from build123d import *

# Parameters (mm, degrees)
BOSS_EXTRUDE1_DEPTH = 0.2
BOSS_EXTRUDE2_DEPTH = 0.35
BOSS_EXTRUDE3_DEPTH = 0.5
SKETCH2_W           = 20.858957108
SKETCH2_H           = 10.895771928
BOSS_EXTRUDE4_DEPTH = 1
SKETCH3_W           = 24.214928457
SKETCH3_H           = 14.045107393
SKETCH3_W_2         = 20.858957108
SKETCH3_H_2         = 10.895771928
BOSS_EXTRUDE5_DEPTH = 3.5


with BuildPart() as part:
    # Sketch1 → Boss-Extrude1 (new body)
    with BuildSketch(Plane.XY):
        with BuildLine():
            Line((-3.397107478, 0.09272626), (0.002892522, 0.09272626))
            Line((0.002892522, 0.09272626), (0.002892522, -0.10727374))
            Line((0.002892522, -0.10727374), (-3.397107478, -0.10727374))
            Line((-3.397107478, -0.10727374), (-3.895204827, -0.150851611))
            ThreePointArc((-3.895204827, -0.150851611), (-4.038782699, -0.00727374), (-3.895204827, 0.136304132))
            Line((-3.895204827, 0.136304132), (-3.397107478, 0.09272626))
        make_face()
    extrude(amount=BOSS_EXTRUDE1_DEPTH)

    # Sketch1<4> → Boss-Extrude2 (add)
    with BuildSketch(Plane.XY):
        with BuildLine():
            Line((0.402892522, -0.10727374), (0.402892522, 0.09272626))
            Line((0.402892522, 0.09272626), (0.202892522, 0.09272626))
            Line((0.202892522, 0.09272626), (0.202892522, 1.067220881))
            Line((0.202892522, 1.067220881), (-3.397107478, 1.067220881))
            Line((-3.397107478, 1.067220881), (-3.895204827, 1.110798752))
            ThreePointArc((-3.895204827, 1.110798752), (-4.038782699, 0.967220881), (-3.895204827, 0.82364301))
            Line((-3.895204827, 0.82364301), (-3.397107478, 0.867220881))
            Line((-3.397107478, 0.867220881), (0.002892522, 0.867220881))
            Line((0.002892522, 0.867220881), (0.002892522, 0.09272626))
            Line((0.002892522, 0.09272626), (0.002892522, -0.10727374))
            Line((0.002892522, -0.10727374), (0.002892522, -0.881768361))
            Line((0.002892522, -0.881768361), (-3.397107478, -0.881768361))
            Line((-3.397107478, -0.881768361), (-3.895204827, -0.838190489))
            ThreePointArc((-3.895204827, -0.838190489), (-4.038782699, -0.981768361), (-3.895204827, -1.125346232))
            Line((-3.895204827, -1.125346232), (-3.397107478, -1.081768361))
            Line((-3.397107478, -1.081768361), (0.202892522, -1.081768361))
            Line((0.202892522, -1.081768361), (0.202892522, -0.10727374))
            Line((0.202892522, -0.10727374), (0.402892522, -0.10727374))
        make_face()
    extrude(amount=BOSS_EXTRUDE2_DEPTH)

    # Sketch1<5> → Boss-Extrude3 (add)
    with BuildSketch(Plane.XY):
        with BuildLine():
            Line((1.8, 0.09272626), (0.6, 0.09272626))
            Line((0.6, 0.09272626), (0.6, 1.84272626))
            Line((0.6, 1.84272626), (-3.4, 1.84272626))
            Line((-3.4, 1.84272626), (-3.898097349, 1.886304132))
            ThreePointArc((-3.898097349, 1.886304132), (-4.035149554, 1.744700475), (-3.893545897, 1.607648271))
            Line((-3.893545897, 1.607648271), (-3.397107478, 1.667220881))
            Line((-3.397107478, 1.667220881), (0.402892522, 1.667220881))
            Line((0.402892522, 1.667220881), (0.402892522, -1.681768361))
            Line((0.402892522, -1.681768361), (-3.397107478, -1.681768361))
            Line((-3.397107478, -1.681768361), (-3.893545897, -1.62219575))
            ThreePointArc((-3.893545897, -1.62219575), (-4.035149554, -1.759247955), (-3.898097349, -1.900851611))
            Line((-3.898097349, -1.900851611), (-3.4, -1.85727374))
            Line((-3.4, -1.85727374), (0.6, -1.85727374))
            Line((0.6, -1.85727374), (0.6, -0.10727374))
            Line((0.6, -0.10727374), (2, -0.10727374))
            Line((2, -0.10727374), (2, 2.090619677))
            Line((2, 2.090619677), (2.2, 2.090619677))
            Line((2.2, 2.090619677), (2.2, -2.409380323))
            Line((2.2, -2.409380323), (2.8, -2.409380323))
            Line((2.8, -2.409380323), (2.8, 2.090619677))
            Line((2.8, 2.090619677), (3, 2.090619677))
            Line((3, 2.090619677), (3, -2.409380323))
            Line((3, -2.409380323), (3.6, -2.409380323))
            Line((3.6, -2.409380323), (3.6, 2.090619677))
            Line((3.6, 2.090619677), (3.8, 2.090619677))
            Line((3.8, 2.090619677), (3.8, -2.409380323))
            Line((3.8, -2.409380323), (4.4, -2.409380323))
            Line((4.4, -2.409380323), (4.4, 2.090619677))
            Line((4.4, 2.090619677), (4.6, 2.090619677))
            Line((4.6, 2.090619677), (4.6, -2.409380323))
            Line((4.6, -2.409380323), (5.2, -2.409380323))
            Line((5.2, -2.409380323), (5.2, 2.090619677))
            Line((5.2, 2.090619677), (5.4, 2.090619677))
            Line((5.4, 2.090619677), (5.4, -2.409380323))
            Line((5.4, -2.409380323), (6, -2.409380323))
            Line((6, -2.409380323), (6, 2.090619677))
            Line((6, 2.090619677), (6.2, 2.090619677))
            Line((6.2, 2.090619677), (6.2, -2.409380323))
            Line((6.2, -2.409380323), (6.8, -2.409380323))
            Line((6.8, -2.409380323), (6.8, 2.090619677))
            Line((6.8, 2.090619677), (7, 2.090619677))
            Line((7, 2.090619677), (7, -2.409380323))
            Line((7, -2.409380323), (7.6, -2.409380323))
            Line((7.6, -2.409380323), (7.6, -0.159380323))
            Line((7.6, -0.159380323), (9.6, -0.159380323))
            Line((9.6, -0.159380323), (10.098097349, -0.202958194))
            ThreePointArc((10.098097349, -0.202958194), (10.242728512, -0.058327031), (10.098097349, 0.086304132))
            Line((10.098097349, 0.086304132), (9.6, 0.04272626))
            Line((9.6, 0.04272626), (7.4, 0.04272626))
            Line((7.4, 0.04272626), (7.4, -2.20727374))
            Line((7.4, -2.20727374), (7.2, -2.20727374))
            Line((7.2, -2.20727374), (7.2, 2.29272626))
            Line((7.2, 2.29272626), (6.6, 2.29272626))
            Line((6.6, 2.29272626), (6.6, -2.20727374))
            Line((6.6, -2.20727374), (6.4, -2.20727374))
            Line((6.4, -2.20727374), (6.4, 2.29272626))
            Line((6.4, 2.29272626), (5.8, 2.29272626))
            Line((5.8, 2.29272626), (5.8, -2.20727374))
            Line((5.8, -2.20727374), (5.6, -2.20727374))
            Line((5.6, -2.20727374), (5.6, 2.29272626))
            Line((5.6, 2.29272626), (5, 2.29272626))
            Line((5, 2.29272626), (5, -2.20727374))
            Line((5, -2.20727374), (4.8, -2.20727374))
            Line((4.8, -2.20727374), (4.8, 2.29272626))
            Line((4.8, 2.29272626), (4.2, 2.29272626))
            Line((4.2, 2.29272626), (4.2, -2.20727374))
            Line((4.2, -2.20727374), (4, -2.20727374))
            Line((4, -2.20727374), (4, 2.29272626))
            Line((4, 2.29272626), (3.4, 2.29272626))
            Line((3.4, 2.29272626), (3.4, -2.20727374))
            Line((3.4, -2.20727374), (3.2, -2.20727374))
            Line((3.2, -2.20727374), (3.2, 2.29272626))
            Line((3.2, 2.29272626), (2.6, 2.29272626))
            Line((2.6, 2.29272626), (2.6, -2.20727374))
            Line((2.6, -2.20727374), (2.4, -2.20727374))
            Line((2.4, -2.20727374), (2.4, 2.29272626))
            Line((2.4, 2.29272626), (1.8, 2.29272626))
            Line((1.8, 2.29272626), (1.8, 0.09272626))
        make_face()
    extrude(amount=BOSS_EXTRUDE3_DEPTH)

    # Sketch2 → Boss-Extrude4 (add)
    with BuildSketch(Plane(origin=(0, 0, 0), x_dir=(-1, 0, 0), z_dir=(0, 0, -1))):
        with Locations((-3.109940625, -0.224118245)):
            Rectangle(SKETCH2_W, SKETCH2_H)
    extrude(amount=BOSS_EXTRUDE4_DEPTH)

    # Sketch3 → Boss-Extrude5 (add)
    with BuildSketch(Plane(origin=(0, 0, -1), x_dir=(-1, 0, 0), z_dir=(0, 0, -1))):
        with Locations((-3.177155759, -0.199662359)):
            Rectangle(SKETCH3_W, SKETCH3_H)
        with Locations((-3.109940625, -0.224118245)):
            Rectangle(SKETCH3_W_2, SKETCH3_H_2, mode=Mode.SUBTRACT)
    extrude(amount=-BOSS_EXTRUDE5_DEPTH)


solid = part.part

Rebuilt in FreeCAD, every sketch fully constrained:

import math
import FreeCAD as App
import Part
import Sketcher

V = App.Vector
Q = App.Units.Quantity


def add_polygon(sketch, points):
    """Adds a closed chain of lines whose ends are joined by coincident constraints."""
    first, n = sketch.GeometryCount, len(points)
    for a, b in zip(points, points[1:] + points[:1]):
        sketch.addGeometry(Part.LineSegment(App.Vector(*a, 0), App.Vector(*b, 0)), False)
    for i in range(n):
        sketch.addConstraint(Sketcher.Constraint("Coincident", first + i, 2, first + (i + 1) % n, 1))

doc = App.newDocument("Part")
params = doc.addObject("Spreadsheet::Sheet", "Params")
for row, (alias, value) in enumerate([
    ("sketch1_width", "3.4 mm"),
    ("sketch1_height", "0.2 mm"),
    ("sketch1_length", "0.5 mm"),
    ("pad1_length", "0.2 mm"),
    ("sketch2_width", "0.2 mm"),
    ("sketch2_width2", "3.6 mm"),
    ("sketch2_width3", "3.4 mm"),
    ("sketch2_length", "0.5 mm"),
    ("pad2_length", "0.35 mm"),
    ("sketch3_width", "4 mm"),
    ("sketch3_width2", "2 mm"),
    ("sketch3_width3", "1.2 mm"),
    ("sketch3_width4", "3.8 mm"),
    ("sketch3_width5", "1.4 mm"),
    ("pad3_length", "0.5 mm"),
    ("pad4_length", "1 mm"),
    ("pad5_length", "3.5 mm"),
], start=1):
    params.set(f"A{row}", alias)
    params.set(f"B{row}", "=" + value)
    params.setAlias(f"B{row}", alias)

body = doc.addObject("PartDesign::Body", "Body")

sketch1 = body.newObject("Sketcher::SketchObject", "Sketch")
sketch1.AttachmentSupport = (doc.getObject("XY_Plane"), [""])
sketch1.MapMode = "FlatFace"
sketch1.addGeometry([
    Part.LineSegment(V(0, 0.09, 0), V(-3.4, 0.09, 0)),
    Part.LineSegment(V(-3.4, 0.09, 0), V(-3.9, 0.14, 0)),
    Part.ArcOfCircle(Part.Circle(V(-3.9, -0.01, 0), V(0, 0, 1), 0.14), math.radians(90), math.radians(270)),
    Part.LineSegment(V(-3.9, -0.15, 0), V(-3.4, -0.11, 0)),
    Part.LineSegment(V(-3.4, -0.11, 0), V(0, -0.11, 0)),
    Part.LineSegment(V(0, -0.11, 0), V(0, 0.09, 0)),
], False)
sketch1.addConstraint([
    Sketcher.Constraint("Coincident", 0, 2, 1, 1),
    Sketcher.Constraint("Coincident", 1, 2, 2, 1),
    Sketcher.Constraint("Coincident", 2, 2, 3, 1),
    Sketcher.Constraint("Coincident", 3, 2, 4, 1),
    Sketcher.Constraint("Coincident", 4, 2, 5, 1),
    Sketcher.Constraint("Coincident", 5, 2, 0, 1),
    Sketcher.Constraint("Horizontal", 0),
    Sketcher.Constraint("Horizontal", 4),
    Sketcher.Constraint("Vertical", 5),
    Sketcher.Constraint("Vertical", 2, 3, 1, 2),
    Sketcher.Constraint("Vertical", 1, 2, 2, 2),
    Sketcher.Constraint("Vertical", 0, 2, 3, 2),
    Sketcher.Constraint("Equal", 1, 3),
    Sketcher.Constraint("Angle", 1, Q("175 deg")),
    Sketcher.Constraint("DistanceX", 0, 2, 0, 1, Q("3.4 mm")),
    Sketcher.Constraint("DistanceY", 5, 1, 5, 2, Q("0.2 mm")),
    Sketcher.Constraint("Distance", 1, Q("0.5 mm")),
    Sketcher.Constraint("DistanceY", 2, 2, -1, 1, Q("0.150852 mm")),
    Sketcher.Constraint("DistanceX", 2, 3, -1, 1, Q("3.895205 mm")),
])
sketch1.setExpression("Constraints[14]", "Params.sketch1_width")
sketch1.setExpression("Constraints[15]", "Params.sketch1_height")
sketch1.setExpression("Constraints[16]", "Params.sketch1_length")
pad1 = body.newObject("PartDesign::Pad", "Pad")
pad1.Profile = sketch1
pad1.setExpression("Length", "Params.pad1_length")

sketch2 = body.newObject("Sketcher::SketchObject", "Sketch001")
sketch2.AttachmentSupport = (doc.getObject("XY_Plane"), [""])
sketch2.MapMode = "FlatFace"
sketch2.addGeometry([
    Part.LineSegment(V(0.4, -0.11, 0), V(0.4, 0.09, 0)),
    Part.LineSegment(V(0.4, 0.09, 0), V(0.2, 0.09, 0)),
    Part.LineSegment(V(0.2, 0.09, 0), V(0.2, 1.07, 0)),
    Part.LineSegment(V(0.2, 1.07, 0), V(-3.4, 1.07, 0)),
    Part.LineSegment(V(-3.4, 1.07, 0), V(-3.9, 1.11, 0)),
    Part.ArcOfCircle(Part.Circle(V(-3.9, 0.97, 0), V(0, 0, 1), 0.14), math.radians(90), math.radians(270)),
    Part.LineSegment(V(-3.9, 0.82, 0), V(-3.4, 0.87, 0)),
    Part.LineSegment(V(-3.4, 0.87, 0), V(0, 0.87, 0)),
    Part.LineSegment(V(0, 0.87, 0), V(0, -0.88, 0)),
    Part.LineSegment(V(0, -0.88, 0), V(-3.4, -0.88, 0)),
    Part.LineSegment(V(-3.4, -0.88, 0), V(-3.9, -0.84, 0)),
    Part.ArcOfCircle(Part.Circle(V(-3.9, -0.98, 0), V(0, 0, 1), 0.14), math.radians(90), math.radians(270)),
    Part.LineSegment(V(-3.9, -1.13, 0), V(-3.4, -1.08, 0)),
    Part.LineSegment(V(-3.4, -1.08, 0), V(0.2, -1.08, 0)),
    Part.LineSegment(V(0.2, -1.08, 0), V(0.2, -0.11, 0)),
    Part.LineSegment(V(0.2, -0.11, 0), V(0.4, -0.11, 0)),
], False)
sketch2.addConstraint([
    Sketcher.Constraint("Coincident", 0, 2, 1, 1),
    Sketcher.Constraint("Coincident", 1, 2, 2, 1),
    Sketcher.Constraint("Coincident", 2, 2, 3, 1),
    Sketcher.Constraint("Coincident", 3, 2, 4, 1),
    Sketcher.Constraint("Coincident", 4, 2, 5, 1),
    Sketcher.Constraint("Coincident", 5, 2, 6, 1),
    Sketcher.Constraint("Coincident", 6, 2, 7, 1),
    Sketcher.Constraint("Coincident", 7, 2, 8, 1),
    Sketcher.Constraint("Coincident", 8, 2, 9, 1),
    Sketcher.Constraint("Coincident", 9, 2, 10, 1),
    Sketcher.Constraint("Coincident", 10, 2, 11, 1),
    Sketcher.Constraint("Coincident", 11, 2, 12, 1),
    Sketcher.Constraint("Coincident", 12, 2, 13, 1),
    Sketcher.Constraint("Coincident", 13, 2, 14, 1),
    Sketcher.Constraint("Coincident", 14, 2, 15, 1),
    Sketcher.Constraint("Coincident", 15, 2, 0, 1),
    Sketcher.Constraint("Vertical", 0),
    Sketcher.Constraint("Horizontal", 1),
    Sketcher.Constraint("Vertical", 2),
    Sketcher.Constraint("Horizontal", 3),
    Sketcher.Constraint("Horizontal", 7),
    Sketcher.Constraint("Vertical", 8),
    Sketcher.Constraint("Horizontal", 9),
    Sketcher.Constraint("Horizontal", 13),
    Sketcher.Constraint("Vertical", 14),
    Sketcher.Constraint("Horizontal", 15),
    Sketcher.Constraint("Equal", 5, 11),
    Sketcher.Constraint("Parallel", 4, 10),
    Sketcher.Constraint("Parallel", 6, 12),
    Sketcher.Constraint("Vertical", 5, 3, 11, 3),
    Sketcher.Constraint("Vertical", 11, 3, 4, 2),
    Sketcher.Constraint("Vertical", 4, 2, 5, 2),
    Sketcher.Constraint("Vertical", 3, 2, 6, 2),
    Sketcher.Constraint("Vertical", 6, 2, 9, 2),
    Sketcher.Constraint("Vertical", 5, 2, 10, 2),
    Sketcher.Constraint("Vertical", 10, 2, 11, 2),
    Sketcher.Constraint("Vertical", 9, 2, 12, 2),
    Sketcher.Constraint("Vertical", 2, 2, 13, 2),
    Sketcher.Constraint("Equal", 15, 0),
    Sketcher.Constraint("Equal", 2, 14),
    Sketcher.Constraint("Equal", 4, 6),
    Sketcher.Constraint("Angle", 4, Q("175 deg")),
    Sketcher.Constraint("DistanceX", 1, 2, 1, 1, Q("0.2 mm")),
    Sketcher.Constraint("DistanceX", 3, 2, 3, 1, Q("3.6 mm")),
    Sketcher.Constraint("DistanceX", 7, 1, 7, 2, Q("3.4 mm")),
    Sketcher.Constraint("Distance", 4, Q("0.5 mm")),
    Sketcher.Constraint("DistanceY", 5, 3, 2, 2, Q("0.1 mm")),
    Sketcher.Constraint("DistanceY", 8, 2, 8, 1, Q("1.748989 mm")),
    Sketcher.Constraint("DistanceY", -1, 1, 4, 2, Q("1.110799 mm")),
    Sketcher.Constraint("DistanceX", 5, 3, -1, 1, Q("3.895205 mm")),
])
sketch2.setExpression("Constraints[42]", "Params.sketch2_width")
sketch2.setExpression("Constraints[43]", "Params.sketch2_width2")
sketch2.setExpression("Constraints[44]", "Params.sketch2_width3")
sketch2.setExpression("Constraints[45]", "Params.sketch2_length")
pad2 = body.newObject("PartDesign::Pad", "Pad001")
pad2.Profile = sketch2
pad2.setExpression("Length", "Params.pad2_length")

sketch3 = body.newObject("Sketcher::SketchObject", "Sketch002")
sketch3.AttachmentSupport = (doc.getObject("XY_Plane"), [""])
sketch3.MapMode = "FlatFace"
sketch3.addGeometry([
    Part.LineSegment(V(1.8, 0.09, 0), V(0.6, 0.09, 0)),
    Part.LineSegment(V(0.6, 0.09, 0), V(0.6, 1.84, 0)),
    Part.LineSegment(V(0.6, 1.84, 0), V(-3.4, 1.84, 0)),
    Part.LineSegment(V(-3.4, 1.84, 0), V(-3.9, 1.89, 0)),
    Part.ArcOfCircle(Part.Circle(V(-3.9, 1.75, 0), V(0, 0, 1), 0.14), math.radians(91), math.radians(271)),
    Part.LineSegment(V(-3.89, 1.61, 0), V(-3.4, 1.67, 0)),
    Part.LineSegment(V(-3.4, 1.67, 0), V(0.4, 1.67, 0)),
    Part.LineSegment(V(0.4, 1.67, 0), V(0.4, -1.68, 0)),
    Part.LineSegment(V(0.4, -1.68, 0), V(-3.4, -1.68, 0)),
    Part.LineSegment(V(-3.4, -1.68, 0), V(-3.89, -1.62, 0)),
    Part.ArcOfCircle(Part.Circle(V(-3.9, -1.76, 0), V(0, 0, 1), 0.14), math.radians(89), math.radians(269)),
    Part.LineSegment(V(-3.9, -1.9, 0), V(-3.4, -1.86, 0)),
    Part.LineSegment(V(-3.4, -1.86, 0), V(0.6, -1.86, 0)),
    Part.LineSegment(V(0.6, -1.86, 0), V(0.6, -0.11, 0)),
    Part.LineSegment(V(0.6, -0.11, 0), V(2, -0.11, 0)),
    Part.LineSegment(V(2, -0.11, 0), V(2, 2.09, 0)),
    Part.LineSegment(V(2, 2.09, 0), V(2.2, 2.09, 0)),
    Part.LineSegment(V(2.2, 2.09, 0), V(2.2, -2.41, 0)),
    Part.LineSegment(V(2.2, -2.41, 0), V(2.8, -2.41, 0)),
    Part.LineSegment(V(2.8, -2.41, 0), V(2.8, 2.09, 0)),
    Part.LineSegment(V(2.8, 2.09, 0), V(3, 2.09, 0)),
    Part.LineSegment(V(3, 2.09, 0), V(3, -2.41, 0)),
    Part.LineSegment(V(3, -2.41, 0), V(3.6, -2.41, 0)),
    Part.LineSegment(V(3.6, -2.41, 0), V(3.6, 2.09, 0)),
    Part.LineSegment(V(3.6, 2.09, 0), V(3.8, 2.09, 0)),
    Part.LineSegment(V(3.8, 2.09, 0), V(3.8, -2.41, 0)),
    Part.LineSegment(V(3.8, -2.41, 0), V(4.4, -2.41, 0)),
    Part.LineSegment(V(4.4, -2.41, 0), V(4.4, 2.09, 0)),
    Part.LineSegment(V(4.4, 2.09, 0), V(4.6, 2.09, 0)),
    Part.LineSegment(V(4.6, 2.09, 0), V(4.6, -2.41, 0)),
    Part.LineSegment(V(4.6, -2.41, 0), V(5.2, -2.41, 0)),
    Part.LineSegment(V(5.2, -2.41, 0), V(5.2, 2.09, 0)),
    Part.LineSegment(V(5.2, 2.09, 0), V(5.4, 2.09, 0)),
    Part.LineSegment(V(5.4, 2.09, 0), V(5.4, -2.41, 0)),
    Part.LineSegment(V(5.4, -2.41, 0), V(6, -2.41, 0)),
    Part.LineSegment(V(6, -2.41, 0), V(6, 2.09, 0)),
    Part.LineSegment(V(6, 2.09, 0), V(6.2, 2.09, 0)),
    Part.LineSegment(V(6.2, 2.09, 0), V(6.2, -2.41, 0)),
    Part.LineSegment(V(6.2, -2.41, 0), V(6.8, -2.41, 0)),
    Part.LineSegment(V(6.8, -2.41, 0), V(6.8, 2.09, 0)),
    Part.LineSegment(V(6.8, 2.09, 0), V(7, 2.09, 0)),
    Part.LineSegment(V(7, 2.09, 0), V(7, -2.41, 0)),
    Part.LineSegment(V(7, -2.41, 0), V(7.6, -2.41, 0)),
    Part.LineSegment(V(7.6, -2.41, 0), V(7.6, -0.16, 0)),
    Part.LineSegment(V(7.6, -0.16, 0), V(9.6, -0.16, 0)),
    Part.LineSegment(V(9.6, -0.16, 0), V(10.1, -0.2, 0)),
    Part.ArcOfCircle(Part.Circle(V(10.1, -0.06, 0), V(0, 0, 1), 0.14), math.radians(-90), math.radians(90)),
    Part.LineSegment(V(10.1, 0.09, 0), V(9.6, 0.04, 0)),
    Part.LineSegment(V(9.6, 0.04, 0), V(7.4, 0.04, 0)),
    Part.LineSegment(V(7.4, 0.04, 0), V(7.4, -2.21, 0)),
    Part.LineSegment(V(7.4, -2.21, 0), V(7.2, -2.21, 0)),
    Part.LineSegment(V(7.2, -2.21, 0), V(7.2, 2.29, 0)),
    Part.LineSegment(V(7.2, 2.29, 0), V(6.6, 2.29, 0)),
    Part.LineSegment(V(6.6, 2.29, 0), V(6.6, -2.21, 0)),
    Part.LineSegment(V(6.6, -2.21, 0), V(6.4, -2.21, 0)),
    Part.LineSegment(V(6.4, -2.21, 0), V(6.4, 2.29, 0)),
    Part.LineSegment(V(6.4, 2.29, 0), V(5.8, 2.29, 0)),
    Part.LineSegment(V(5.8, 2.29, 0), V(5.8, -2.21, 0)),
    Part.LineSegment(V(5.8, -2.21, 0), V(5.6, -2.21, 0)),
    Part.LineSegment(V(5.6, -2.21, 0), V(5.6, 2.29, 0)),
    Part.LineSegment(V(5.6, 2.29, 0), V(5, 2.29, 0)),
    Part.LineSegment(V(5, 2.29, 0), V(5, -2.21, 0)),
    Part.LineSegment(V(5, -2.21, 0), V(4.8, -2.21, 0)),
    Part.LineSegment(V(4.8, -2.21, 0), V(4.8, 2.29, 0)),
    Part.LineSegment(V(4.8, 2.29, 0), V(4.2, 2.29, 0)),
    Part.LineSegment(V(4.2, 2.29, 0), V(4.2, -2.21, 0)),
    Part.LineSegment(V(4.2, -2.21, 0), V(4, -2.21, 0)),
    Part.LineSegment(V(4, -2.21, 0), V(4, 2.29, 0)),
    Part.LineSegment(V(4, 2.29, 0), V(3.4, 2.29, 0)),
    Part.LineSegment(V(3.4, 2.29, 0), V(3.4, -2.21, 0)),
    Part.LineSegment(V(3.4, -2.21, 0), V(3.2, -2.21, 0)),
    Part.LineSegment(V(3.2, -2.21, 0), V(3.2, 2.29, 0)),
    Part.LineSegment(V(3.2, 2.29, 0), V(2.6, 2.29, 0)),
    Part.LineSegment(V(2.6, 2.29, 0), V(2.6, -2.21, 0)),
    Part.LineSegment(V(2.6, -2.21, 0), V(2.4, -2.21, 0)),
    Part.LineSegment(V(2.4, -2.21, 0), V(2.4, 2.29, 0)),
    Part.LineSegment(V(2.4, 2.29, 0), V(1.8, 2.29, 0)),
    Part.LineSegment(V(1.8, 2.29, 0), V(1.8, 0.09, 0)),
], False)
sketch3.addConstraint([
    Sketcher.Constraint("Coincident", 0, 2, 1, 1),
    Sketcher.Constraint("Coincident", 1, 2, 2, 1),
    Sketcher.Constraint("Coincident", 2, 2, 3, 1),
    Sketcher.Constraint("Coincident", 3, 2, 4, 1),
    Sketcher.Constraint("Coincident", 4, 2, 5, 1),
    Sketcher.Constraint("Coincident", 5, 2, 6, 1),
    Sketcher.Constraint("Coincident", 6, 2, 7, 1),
    Sketcher.Constraint("Coincident", 7, 2, 8, 1),
    Sketcher.Constraint("Coincident", 8, 2, 9, 1),
    Sketcher.Constraint("Coincident", 9, 2, 10, 1),
    Sketcher.Constraint("Coincident", 10, 2, 11, 1),
    Sketcher.Constraint("Coincident", 11, 2, 12, 1),
    Sketcher.Constraint("Coincident", 12, 2, 13, 1),
    Sketcher.Constraint("Coincident", 13, 2, 14, 1),
    Sketcher.Constraint("Coincident", 14, 2, 15, 1),
    Sketcher.Constraint("Coincident", 15, 2, 16, 1),
    Sketcher.Constraint("Coincident", 16, 2, 17, 1),
    Sketcher.Constraint("Coincident", 17, 2, 18, 1),
    Sketcher.Constraint("Coincident", 18, 2, 19, 1),
    Sketcher.Constraint("Coincident", 19, 2, 20, 1),
    Sketcher.Constraint("Coincident", 20, 2, 21, 1),
    Sketcher.Constraint("Coincident", 21, 2, 22, 1),
    Sketcher.Constraint("Coincident", 22, 2, 23, 1),
    Sketcher.Constraint("Coincident", 23, 2, 24, 1),
    Sketcher.Constraint("Coincident", 24, 2, 25, 1),
    Sketcher.Constraint("Coincident", 25, 2, 26, 1),
    Sketcher.Constraint("Coincident", 26, 2, 27, 1),
    Sketcher.Constraint("Coincident", 27, 2, 28, 1),
    Sketcher.Constraint("Coincident", 28, 2, 29, 1),
    Sketcher.Constraint("Coincident", 29, 2, 30, 1),
    Sketcher.Constraint("Coincident", 30, 2, 31, 1),
    Sketcher.Constraint("Coincident", 31, 2, 32, 1),
    Sketcher.Constraint("Coincident", 32, 2, 33, 1),
    Sketcher.Constraint("Coincident", 33, 2, 34, 1),
    Sketcher.Constraint("Coincident", 34, 2, 35, 1),
    Sketcher.Constraint("Coincident", 35, 2, 36, 1),
    Sketcher.Constraint("Coincident", 36, 2, 37, 1),
    Sketcher.Constraint("Coincident", 37, 2, 38, 1),
    Sketcher.Constraint("Coincident", 38, 2, 39, 1),
    Sketcher.Constraint("Coincident", 39, 2, 40, 1),
    Sketcher.Constraint("Coincident", 40, 2, 41, 1),
    Sketcher.Constraint("Coincident", 41, 2, 42, 1),
    Sketcher.Constraint("Coincident", 42, 2, 43, 1),
    Sketcher.Constraint("Coincident", 43, 2, 44, 1),
    Sketcher.Constraint("Coincident", 44, 2, 45, 1),
    Sketcher.Constraint("Coincident", 45, 2, 46, 1),
    Sketcher.Constraint("Coincident", 46, 2, 47, 1),
    Sketcher.Constraint("Coincident", 47, 2, 48, 1),
    Sketcher.Constraint("Coincident", 48, 2, 49, 1),
    Sketcher.Constraint("Coincident", 49, 2, 50, 1),
    Sketcher.Constraint("Coincident", 50, 2, 51, 1),
    Sketcher.Constraint("Coincident", 51, 2, 52, 1),
    Sketcher.Constraint("Coincident", 52, 2, 53, 1),
    Sketcher.Constraint("Coincident", 53, 2, 54, 1),
    Sketcher.Constraint("Coincident", 54, 2, 55, 1),
    Sketcher.Constraint("Coincident", 55, 2, 56, 1),
    Sketcher.Constraint("Coincident", 56, 2, 57, 1),
    Sketcher.Constraint("Coincident", 57, 2, 58, 1),
    Sketcher.Constraint("Coincident", 58, 2, 59, 1),
    Sketcher.Constraint("Coincident", 59, 2, 60, 1),
    Sketcher.Constraint("Coincident", 60, 2, 61, 1),
    Sketcher.Constraint("Coincident", 61, 2, 62, 1),
    Sketcher.Constraint("Coincident", 62, 2, 63, 1),
    Sketcher.Constraint("Coincident", 63, 2, 64, 1),
    Sketcher.Constraint("Coincident", 64, 2, 65, 1),
    Sketcher.Constraint("Coincident", 65, 2, 66, 1),
    Sketcher.Constraint("Coincident", 66, 2, 67, 1),
    Sketcher.Constraint("Coincident", 67, 2, 68, 1),
    Sketcher.Constraint("Coincident", 68, 2, 69, 1),
    Sketcher.Constraint("Coincident", 69, 2, 70, 1),
    Sketcher.Constraint("Coincident", 70, 2, 71, 1),
    Sketcher.Constraint("Coincident", 71, 2, 72, 1),
    Sketcher.Constraint("Coincident", 72, 2, 73, 1),
    Sketcher.Constraint("Coincident", 73, 2, 74, 1),
    Sketcher.Constraint("Coincident", 74, 2, 75, 1),
    Sketcher.Constraint("Coincident", 75, 2, 76, 1),
    Sketcher.Constraint("Coincident", 76, 2, 77, 1),
    Sketcher.Constraint("Coincident", 77, 2, 0, 1),
    Sketcher.Constraint("Horizontal", 0),
    Sketcher.Constraint("Vertical", 1),
    Sketcher.Constraint("Horizontal", 2),
    Sketcher.Constraint("Horizontal", 6),
    Sketcher.Constraint("Vertical", 7),
    Sketcher.Constraint("Horizontal", 8),
    Sketcher.Constraint("Horizontal", 12),
    Sketcher.Constraint("Vertical", 13),
    Sketcher.Constraint("Horizontal", 14),
    Sketcher.Constraint("Vertical", 15),
    Sketcher.Constraint("Horizontal", 16),
    Sketcher.Constraint("Vertical", 17),
    Sketcher.Constraint("Horizontal", 18),
    Sketcher.Constraint("Vertical", 19),
    Sketcher.Constraint("Horizontal", 20),
    Sketcher.Constraint("Vertical", 21),
    Sketcher.Constraint("Horizontal", 22),
    Sketcher.Constraint("Vertical", 23),
    Sketcher.Constraint("Horizontal", 24),
    Sketcher.Constraint("Vertical", 25),
    Sketcher.Constraint("Horizontal", 26),
    Sketcher.Constraint("Vertical", 27),
    Sketcher.Constraint("Horizontal", 28),
    Sketcher.Constraint("Vertical", 29),
    Sketcher.Constraint("Horizontal", 30),
    Sketcher.Constraint("Vertical", 31),
    Sketcher.Constraint("Horizontal", 32),
    Sketcher.Constraint("Vertical", 33),
    Sketcher.Constraint("Horizontal", 34),
    Sketcher.Constraint("Vertical", 35),
    Sketcher.Constraint("Horizontal", 36),
    Sketcher.Constraint("Vertical", 37),
    Sketcher.Constraint("Horizontal", 38),
    Sketcher.Constraint("Vertical", 39),
    Sketcher.Constraint("Horizontal", 40),
    Sketcher.Constraint("Vertical", 41),
    Sketcher.Constraint("Horizontal", 42),
    Sketcher.Constraint("Vertical", 43),
    Sketcher.Constraint("Horizontal", 44),
    Sketcher.Constraint("Horizontal", 48),
    Sketcher.Constraint("Vertical", 49),
    Sketcher.Constraint("Horizontal", 50),
    Sketcher.Constraint("Vertical", 51),
    Sketcher.Constraint("Horizontal", 52),
    Sketcher.Constraint("Vertical", 53),
    Sketcher.Constraint("Horizontal", 54),
    Sketcher.Constraint("Vertical", 55),
    Sketcher.Constraint("Horizontal", 56),
    Sketcher.Constraint("Vertical", 57),
    Sketcher.Constraint("Horizontal", 58),
    Sketcher.Constraint("Vertical", 59),
    Sketcher.Constraint("Horizontal", 60),
    Sketcher.Constraint("Vertical", 61),
    Sketcher.Constraint("Horizontal", 62),
    Sketcher.Constraint("Vertical", 63),
    Sketcher.Constraint("Horizontal", 64),
    Sketcher.Constraint("Vertical", 65),
    Sketcher.Constraint("Horizontal", 66),
    Sketcher.Constraint("Vertical", 67),
    Sketcher.Constraint("Horizontal", 68),
    Sketcher.Constraint("Vertical", 69),
    Sketcher.Constraint("Horizontal", 70),
    Sketcher.Constraint("Vertical", 71),
    Sketcher.Constraint("Horizontal", 72),
    Sketcher.Constraint("Vertical", 73),
    Sketcher.Constraint("Horizontal", 74),
    Sketcher.Constraint("Vertical", 75),
    Sketcher.Constraint("Horizontal", 76),
    Sketcher.Constraint("Vertical", 77),
    Sketcher.Constraint("Equal", 4, 10),
    Sketcher.Constraint("Parallel", 3, 45),
    Sketcher.Constraint("Parallel", 11, 47),
    Sketcher.Constraint("Horizontal", 16, 2, 19, 2),
    Sketcher.Constraint("Horizontal", 18, 2, 21, 2),
    Sketcher.Constraint("Horizontal", 20, 2, 23, 2),
    Sketcher.Constraint("Horizontal", 22, 2, 25, 2),
    Sketcher.Constraint("Horizontal", 24, 2, 27, 2),
    Sketcher.Constraint("Horizontal", 26, 2, 29, 2),
    Sketcher.Constraint("Horizontal", 28, 2, 31, 2),
    Sketcher.Constraint("Horizontal", 30, 2, 33, 2),
    Sketcher.Constraint("Horizontal", 32, 2, 35, 2),
    Sketcher.Constraint("Horizontal", 34, 2, 37, 2),
    Sketcher.Constraint("Horizontal", 36, 2, 39, 2),
    Sketcher.Constraint("Horizontal", 38, 2, 41, 2),
    Sketcher.Constraint("Horizontal", 50, 2, 53, 2),
    Sketcher.Constraint("Horizontal", 52, 2, 55, 2),
    Sketcher.Constraint("Horizontal", 54, 2, 57, 2),
    Sketcher.Constraint("Horizontal", 56, 2, 59, 2),
    Sketcher.Constraint("Horizontal", 58, 2, 61, 2),
    Sketcher.Constraint("Horizontal", 60, 2, 63, 2),
    Sketcher.Constraint("Horizontal", 62, 2, 65, 2),
    Sketcher.Constraint("Horizontal", 64, 2, 67, 2),
    Sketcher.Constraint("Horizontal", 66, 2, 69, 2),
    Sketcher.Constraint("Horizontal", 68, 2, 71, 2),
    Sketcher.Constraint("Horizontal", 70, 2, 73, 2),
    Sketcher.Constraint("Horizontal", 72, 2, 75, 2),
    Sketcher.Constraint("Vertical", 4, 3, 10, 3),
    Sketcher.Constraint("Vertical", 5, 2, 8, 2),
    Sketcher.Constraint("Vertical", 4, 2, 9, 2),
    Sketcher.Constraint("Vertical", 3, 2, 10, 2),
    Sketcher.Constraint("Vertical", 2, 2, 11, 2),
    Sketcher.Constraint("Vertical", 1, 2, 12, 2),
    Sketcher.Constraint("Vertical", 46, 3, 45, 2),
    Sketcher.Constraint("Vertical", 45, 2, 46, 2),
    Sketcher.Constraint("Vertical", 44, 2, 47, 2),
    Sketcher.Constraint("Equal", 16, 20),
    Sketcher.Constraint("Equal", 18, 22),
    Sketcher.Constraint("Equal", 20, 24),
    Sketcher.Constraint("Equal", 22, 26),
    Sketcher.Constraint("Equal", 24, 28),
    Sketcher.Constraint("Equal", 26, 30),
    Sketcher.Constraint("Equal", 28, 32),
    Sketcher.Constraint("Equal", 30, 34),
    Sketcher.Constraint("Equal", 32, 36),
    Sketcher.Constraint("Equal", 34, 38),
    Sketcher.Constraint("Equal", 36, 40),
    Sketcher.Constraint("Equal", 38, 42),
    Sketcher.Constraint("Equal", 40, 50),
    Sketcher.Constraint("Equal", 42, 52),
    Sketcher.Constraint("Equal", 50, 54),
    Sketcher.Constraint("Equal", 52, 56),
    Sketcher.Constraint("Equal", 54, 58),
    Sketcher.Constraint("Equal", 56, 60),
    Sketcher.Constraint("Equal", 58, 62),
    Sketcher.Constraint("Equal", 60, 64),
    Sketcher.Constraint("Equal", 62, 66),
    Sketcher.Constraint("Equal", 64, 68),
    Sketcher.Constraint("Equal", 66, 70),
    Sketcher.Constraint("Equal", 68, 72),
    Sketcher.Constraint("Equal", 70, 74),
    Sketcher.Constraint("Equal", 72, 76),
    Sketcher.Constraint("Equal", 1, 13),
    Sketcher.Constraint("Equal", 43, 49),
    Sketcher.Constraint("Equal", 41, 51),
    Sketcher.Constraint("Equal", 48, 77),
    Sketcher.Constraint("Equal", 3, 5),
    Sketcher.Constraint("Equal", 5, 9),
    Sketcher.Constraint("Equal", 9, 11),
    Sketcher.Constraint("Equal", 11, 45),
    Sketcher.Constraint("DistanceX", 2, 2, 2, 1, Q("4 mm")),
    Sketcher.Constraint("DistanceX", 44, 1, 44, 2, Q("2 mm")),
    Sketcher.Constraint("Angle", 3, Q("175 deg")),
    Sketcher.Constraint("DistanceX", 0, 2, 0, 1, Q("1.2 mm")),
    Sketcher.Constraint("DistanceX", 6, 1, 6, 2, Q("3.8 mm")),
    Sketcher.Constraint("DistanceX", 14, 1, 14, 2, Q("1.4 mm")),
    Sketcher.Constraint("DistanceX", 16, 1, 16, 2, Q("0.2 mm")),
    Sketcher.Constraint("DistanceX", 18, 1, 18, 2, Q("0.6 mm")),
    Sketcher.Constraint("DistanceY", 17, 2, 17, 1, Q("4.5 mm")),
    Sketcher.Constraint("DistanceX", -1, 1, 14, 2, Q("2 mm")),
    Sketcher.Constraint("Distance", 3, Q("0.5 mm")),
    Sketcher.Constraint("DistanceY", 1, 1, 1, 2, Q("1.75 mm")),
    Sketcher.Constraint("DistanceY", 43, 1, 43, 2, Q("2.25 mm")),
    Sketcher.Constraint("Radius", 46, Q("0.144631 mm")),
    Sketcher.Constraint("Radius", 4, Q("0.139347 mm")),
    Sketcher.Constraint("DistanceY", 7, 2, 7, 1, Q("3.348989 mm")),
    Sketcher.Constraint("DistanceY", 15, 1, 15, 2, Q("2.197893 mm")),
    Sketcher.Constraint("DistanceX", 4, 3, -1, 1, Q("3.895822 mm")),
    Sketcher.Constraint("DistanceY", -1, 1, 4, 2, Q("1.607648 mm")),
    Sketcher.Constraint("DistanceX", 4, 2, -1, 1, Q("3.893546 mm")),
])
sketch3.setExpression("Constraints[217]", "Params.sketch3_width")
sketch3.setExpression("Constraints[218]", "Params.sketch3_width2")
sketch3.setExpression("Constraints[220]", "Params.sketch3_width3")
sketch3.setExpression("Constraints[221]", "Params.sketch3_width4")
sketch3.setExpression("Constraints[222]", "Params.sketch3_width5")
pad3 = body.newObject("PartDesign::Pad", "Pad002")
pad3.Profile = sketch3
pad3.setExpression("Length", "Params.pad3_length")

sketch4 = body.newObject("Sketcher::SketchObject", "Sketch003")
sketch4.AttachmentSupport = (doc.getObject("XY_Plane"), [""])
sketch4.MapMode = "FlatFace"
add_polygon(sketch4, [(14, 5), (14, -6), (-7, -6), (-7, 5)])
sketch4.addConstraint([
    Sketcher.Constraint("Vertical", 0),
    Sketcher.Constraint("Horizontal", 1),
    Sketcher.Constraint("Vertical", 2),
    Sketcher.Constraint("Horizontal", 3),
    Sketcher.Constraint("DistanceY", 0, 2, 0, 1, Q("10.895772 mm")),
    Sketcher.Constraint("DistanceX", 1, 2, 1, 1, Q("20.858957 mm")),
    Sketcher.Constraint("DistanceX", -1, 1, 0, 2, Q("13.539419 mm")),
    Sketcher.Constraint("DistanceY", 0, 2, -1, 1, Q("5.672004 mm")),
])
pad4 = body.newObject("PartDesign::Pad", "Pad003")
pad4.Profile = sketch4
pad4.setExpression("Length", "Params.pad4_length")
pad4.Reversed = True

sketch5 = body.newObject("Sketcher::SketchObject", "Sketch004")
sketch5.AttachmentSupport = (doc.getObject("XY_Plane"), [""])
sketch5.MapMode = "FlatFace"
sketch5.AttachmentOffset = App.Placement(V(0, 0, -1), App.Rotation())
add_polygon(sketch5, [(15, 7), (15, -7), (-9, -7), (-9, 7)])
add_polygon(sketch5, [(-7, -6), (14, -6), (14, 5), (-7, 5)])
sketch5.addConstraint([
    Sketcher.Constraint("Vertical", 0),
    Sketcher.Constraint("Horizontal", 1),
    Sketcher.Constraint("Vertical", 2),
    Sketcher.Constraint("Horizontal", 3),
    Sketcher.Constraint("Horizontal", 4),
    Sketcher.Constraint("Vertical", 5),
    Sketcher.Constraint("Horizontal", 6),
    Sketcher.Constraint("Vertical", 7),
    Sketcher.Constraint("DistanceX", 1, 2, 1, 1, Q("24.214928 mm")),
    Sketcher.Constraint("DistanceY", 5, 1, 5, 2, Q("10.895772 mm")),
    Sketcher.Constraint("DistanceX", 4, 2, 0, 2, Q("1.745201 mm")),
    Sketcher.Constraint("DistanceX", 4, 1, 4, 2, Q("20.858957 mm")),
    Sketcher.Constraint("DistanceY", 0, 2, 0, 1, Q("14.045107 mm")),
    Sketcher.Constraint("DistanceX", -1, 1, 0, 2, Q("15.28462 mm")),
    Sketcher.Constraint("DistanceY", -1, 1, 2, 2, Q("6.822891 mm")),
    Sketcher.Constraint("DistanceY", 0, 2, 4, 2, Q("1.550212 mm")),
])
pad5 = body.newObject("PartDesign::Pad", "Pad004")
pad5.Profile = sketch5
pad5.setExpression("Length", "Params.pad5_length")

doc.recompute()
